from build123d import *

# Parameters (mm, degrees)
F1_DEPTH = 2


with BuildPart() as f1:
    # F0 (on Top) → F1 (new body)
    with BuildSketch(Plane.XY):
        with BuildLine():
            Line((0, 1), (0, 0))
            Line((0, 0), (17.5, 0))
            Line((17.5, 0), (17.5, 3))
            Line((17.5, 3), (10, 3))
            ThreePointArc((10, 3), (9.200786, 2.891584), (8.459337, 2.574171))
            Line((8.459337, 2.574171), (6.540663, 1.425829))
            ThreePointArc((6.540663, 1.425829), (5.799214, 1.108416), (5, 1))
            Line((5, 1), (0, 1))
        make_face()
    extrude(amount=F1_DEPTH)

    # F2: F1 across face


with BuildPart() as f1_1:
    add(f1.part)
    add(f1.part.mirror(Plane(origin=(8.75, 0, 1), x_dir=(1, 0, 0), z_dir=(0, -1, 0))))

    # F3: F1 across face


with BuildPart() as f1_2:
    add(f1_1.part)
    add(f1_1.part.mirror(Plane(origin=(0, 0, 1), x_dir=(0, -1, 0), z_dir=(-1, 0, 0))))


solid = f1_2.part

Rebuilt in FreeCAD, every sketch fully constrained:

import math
import FreeCAD as App
import Part
import Sketcher

V = App.Vector
Q = App.Units.Quantity

doc = App.newDocument("Part")
params = doc.addObject("Spreadsheet::Sheet", "Params")
for row, (alias, value) in enumerate([
    ("sketch1_width", "5 mm"),
    ("sketch1_height", "1 mm"),
    ("sketch1_height2", "3 mm"),
    ("sketch1_width2", "17.5 mm"),
    ("sketch1_width3", "7.5 mm"),
    ("pad1_length", "2 mm"),
], start=1):
    params.set(f"A{row}", alias)
    params.set(f"B{row}", "=" + value)
    params.setAlias(f"B{row}", alias)

body = doc.addObject("PartDesign::Body", "Body")

sketch1 = doc.addObject("Sketcher::SketchObject", "Sketch")
body.addObject(sketch1)
sketch1.AttachmentSupport = (doc.XY_Plane, [""])
sketch1.MapMode = "FlatFace"
sketch1.addGeometry([
    Part.LineSegment(V(0, 1, 0), V(0, 0, 0)),
    Part.LineSegment(V(0, 0, 0), V(17.5, 0, 0)),
    Part.LineSegment(V(17.5, 0, 0), V(17.5, 3, 0)),
    Part.LineSegment(V(17.5, 3, 0), V(10, 3, 0)),
    Part.ArcOfCircle(Part.Circle(V(10, 0, 0), V(0, 0, 1), 3), math.radians(90), math.radians(121)),
    Part.LineSegment(V(8.5, 2.6, 0), V(6.5, 1.4, 0)),
    Part.ArcOfCircle(Part.Circle(V(5, 4, 0), V(0, 0, 1), 3), math.radians(-90), math.radians(-59)),
    Part.LineSegment(V(5, 1, 0), V(0, 1, 0)),
], False)
sketch1.addConstraint([
    Sketcher.Constraint("Coincident", 0, 2, 1, 1),
    Sketcher.Constraint("Coincident", 1, 2, 2, 1),
    Sketcher.Constraint("Coincident", 2, 2, 3, 1),
    Sketcher.Constraint("Tangent", 3, 2, 4, 1),
    Sketcher.Constraint("Tangent", 4, 2, 5, 1),
    Sketcher.Constraint("Tangent", 5, 2, 6, 2),
    Sketcher.Constraint("Tangent", 6, 1, 7, 1),
    Sketcher.Constraint("Coincident", 7, 2, 0, 1),
    Sketcher.Constraint("Vertical", 0),
    Sketcher.Constraint("Horizontal", 1),
    Sketcher.Constraint("Vertical", 2),
    Sketcher.Constraint("Horizontal", 3),
    Sketcher.Constraint("Horizontal", 7),
    Sketcher.Constraint("Coincident", 0, 2, -1, 1),
    Sketcher.Constraint("Equal", 4, 6),
    Sketcher.Constraint("DistanceX", 7, 2, 7, 1, Q("5 mm")),
    Sketcher.Constraint("DistanceY", 0, 2, 0, 1, Q("1 mm")),
    Sketcher.Constraint("DistanceY", 2, 1, 2, 2, Q("3 mm")),
    Sketcher.Constraint("DistanceX", 1, 1, 1, 2, Q("17.5 mm")),
    Sketcher.Constraint("DistanceX", 3, 2, 3, 1, Q("7.5 mm")),
    Sketcher.Constraint("Radius", 4, Q("2.999993 mm")),
])
sketch1.setExpression("Constraints[15]", "Params.sketch1_width")
sketch1.setExpression("Constraints[16]", "Params.sketch1_height")
sketch1.setExpression("Constraints[17]", "Params.sketch1_height2")
sketch1.setExpression("Constraints[18]", "Params.sketch1_width2")
sketch1.setExpression("Constraints[19]", "Params.sketch1_width3")
pad1 = doc.addObject("PartDesign::Pad", "Pad")
body.addObject(pad1)
pad1.Profile = sketch1
pad1.setExpression("Length", "Params.pad1_length")
body2 = doc.addObject("PartDesign::Body", "Body001")
doc.recompute()

body2.BaseFeature = body
doc.recompute()

mirroring = doc.addObject("Part::Mirroring", "Mirroring")
mirroring.Source = body
mirroring.Base = V(8.75, 0, 1)
mirroring.Normal = V(0, -1, 0)
body3 = doc.addObject("PartDesign::Body", "Body002")
body3.BaseFeature = mirroring
boolean = doc.addObject("PartDesign::Boolean", "Boolean")
body2.addObject(boolean)
boolean.Type = "Fuse"
boolean.addObjects([body3])
doc.recompute()
body4 = doc.addObject("PartDesign::Body", "Body003")
doc.recompute()

body4.BaseFeature = body2
doc.recompute()

mirroring2 = doc.addObject("Part::Mirroring", "Mirroring001")
mirroring2.Source = body2
mirroring2.Base = V(0, 0, 1)
mirroring2.Normal = V(-1, 0, 0)
body5 = doc.addObject("PartDesign::Body", "Body004")
body5.BaseFeature = mirroring2
boolean2 = doc.addObject("PartDesign::Boolean", "Boolean001")
body4.addObject(boolean2)
boolean2.Type = "Fuse"
boolean2.addObjects([body5])
doc.recompute()
mirroring.Visibility = False
mirroring2.Visibility = False

doc.recompute()
